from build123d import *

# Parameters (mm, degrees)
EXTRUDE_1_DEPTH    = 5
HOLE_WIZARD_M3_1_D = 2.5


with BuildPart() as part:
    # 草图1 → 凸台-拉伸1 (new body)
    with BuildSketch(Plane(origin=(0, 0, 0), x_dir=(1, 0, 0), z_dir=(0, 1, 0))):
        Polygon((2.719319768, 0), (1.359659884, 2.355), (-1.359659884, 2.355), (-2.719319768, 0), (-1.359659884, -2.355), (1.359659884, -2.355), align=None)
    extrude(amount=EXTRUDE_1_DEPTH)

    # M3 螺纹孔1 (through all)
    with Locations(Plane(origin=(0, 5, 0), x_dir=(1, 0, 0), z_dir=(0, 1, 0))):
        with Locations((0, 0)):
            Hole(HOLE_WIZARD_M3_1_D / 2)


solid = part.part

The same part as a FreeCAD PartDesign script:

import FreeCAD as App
import Part
import Sketcher
from FreeCAD import Vector
Q = App.Units.Quantity

doc = App.newDocument("Part")
body = doc.addObject("PartDesign::Body", "Body")

# Sketch on XZ plane
sketch1 = body.newObject("Sketcher::SketchObject", "Sketch")
sketch1.AttachmentSupport = (doc.getObject("XZ_Plane"), [""])
sketch1.MapMode = "FlatFace"
sketch1.addGeometry([
    Part.LineSegment(Vector(2.7, 0, 0), Vector(1.4, -2.4, 0)),  # 0
    Part.LineSegment(Vector(1.4, -2.4, 0), Vector(-1.4, -2.4, 0)),  # 1
    Part.LineSegment(Vector(-1.4, -2.4, 0), Vector(-2.7, 0, 0)),  # 2
    Part.LineSegment(Vector(-2.7, 0, 0), Vector(-1.4, 2.4, 0)),  # 3
    Part.LineSegment(Vector(-1.4, 2.4, 0), Vector(1.4, 2.4, 0)),  # 4
    Part.LineSegment(Vector(1.4, 2.4, 0), Vector(2.7, 0, 0)),  # 5
], False)
sketch1.addConstraint([
    Sketcher.Constraint("Coincident", 0, 2, 1, 1),
    Sketcher.Constraint("Coincident", 1, 2, 2, 1),
    Sketcher.Constraint("Coincident", 2, 2, 3, 1),
    Sketcher.Constraint("Coincident", 3, 2, 4, 1),
    Sketcher.Constraint("Coincident", 4, 2, 5, 1),
    Sketcher.Constraint("Coincident", 5, 2, 0, 1),
    Sketcher.Constraint("Horizontal", 1),
    Sketcher.Constraint("Horizontal", 4),
    Sketcher.Constraint("Symmetric", 0, 2, 3, 2, -1, 1),
    Sketcher.Constraint("Symmetric", 2, 2, 5, 2, -1, 1),
    Sketcher.Constraint("PointOnObject", 2, 2, -1),
    Sketcher.Constraint("Parallel", 2, 5),
    Sketcher.Constraint("Vertical", 1, 2, 3, 2),
    Sketcher.Constraint("Angle", 0, Q("-120 deg")),
    Sketcher.Constraint("DistanceY", 1, 2, 3, 2, 4.71),
    Sketcher.Constraint("DistanceX", 1, 2, 1, 1, 2.71932),
])
pad1 = body.newObject("PartDesign::Pad", "Pad")
pad1.Profile = sketch1
pad1.Length = 5
pad1.Reversed = True

# Sketch on XZ plane
sketch2 = body.newObject("Sketcher::SketchObject", "Sketch001")
sketch2.AttachmentSupport = (doc.getObject("XZ_Plane"), [""])
sketch2.MapMode = "FlatFace"
sketch2.AttachmentOffset = App.Placement(Vector(0, 0, -5), App.Rotation())
sketch2.addGeometry(Part.Circle(Vector(0, 0, 0), Vector(0, 0, 1), 1.2), False)
sketch2.addConstraint([
    Sketcher.Constraint("Coincident", 0, 3, -1, 1),
    Sketcher.Constraint("Diameter", 0, 2.5),
])
doc.recompute()
hole = body.newObject("PartDesign::Hole", "Hole")
hole.Profile = sketch2
hole.ThreadType = "None"
hole.Diameter = 2.5
hole.DepthType = "ThroughAll"
hole.Reversed = True

doc.recompute()
